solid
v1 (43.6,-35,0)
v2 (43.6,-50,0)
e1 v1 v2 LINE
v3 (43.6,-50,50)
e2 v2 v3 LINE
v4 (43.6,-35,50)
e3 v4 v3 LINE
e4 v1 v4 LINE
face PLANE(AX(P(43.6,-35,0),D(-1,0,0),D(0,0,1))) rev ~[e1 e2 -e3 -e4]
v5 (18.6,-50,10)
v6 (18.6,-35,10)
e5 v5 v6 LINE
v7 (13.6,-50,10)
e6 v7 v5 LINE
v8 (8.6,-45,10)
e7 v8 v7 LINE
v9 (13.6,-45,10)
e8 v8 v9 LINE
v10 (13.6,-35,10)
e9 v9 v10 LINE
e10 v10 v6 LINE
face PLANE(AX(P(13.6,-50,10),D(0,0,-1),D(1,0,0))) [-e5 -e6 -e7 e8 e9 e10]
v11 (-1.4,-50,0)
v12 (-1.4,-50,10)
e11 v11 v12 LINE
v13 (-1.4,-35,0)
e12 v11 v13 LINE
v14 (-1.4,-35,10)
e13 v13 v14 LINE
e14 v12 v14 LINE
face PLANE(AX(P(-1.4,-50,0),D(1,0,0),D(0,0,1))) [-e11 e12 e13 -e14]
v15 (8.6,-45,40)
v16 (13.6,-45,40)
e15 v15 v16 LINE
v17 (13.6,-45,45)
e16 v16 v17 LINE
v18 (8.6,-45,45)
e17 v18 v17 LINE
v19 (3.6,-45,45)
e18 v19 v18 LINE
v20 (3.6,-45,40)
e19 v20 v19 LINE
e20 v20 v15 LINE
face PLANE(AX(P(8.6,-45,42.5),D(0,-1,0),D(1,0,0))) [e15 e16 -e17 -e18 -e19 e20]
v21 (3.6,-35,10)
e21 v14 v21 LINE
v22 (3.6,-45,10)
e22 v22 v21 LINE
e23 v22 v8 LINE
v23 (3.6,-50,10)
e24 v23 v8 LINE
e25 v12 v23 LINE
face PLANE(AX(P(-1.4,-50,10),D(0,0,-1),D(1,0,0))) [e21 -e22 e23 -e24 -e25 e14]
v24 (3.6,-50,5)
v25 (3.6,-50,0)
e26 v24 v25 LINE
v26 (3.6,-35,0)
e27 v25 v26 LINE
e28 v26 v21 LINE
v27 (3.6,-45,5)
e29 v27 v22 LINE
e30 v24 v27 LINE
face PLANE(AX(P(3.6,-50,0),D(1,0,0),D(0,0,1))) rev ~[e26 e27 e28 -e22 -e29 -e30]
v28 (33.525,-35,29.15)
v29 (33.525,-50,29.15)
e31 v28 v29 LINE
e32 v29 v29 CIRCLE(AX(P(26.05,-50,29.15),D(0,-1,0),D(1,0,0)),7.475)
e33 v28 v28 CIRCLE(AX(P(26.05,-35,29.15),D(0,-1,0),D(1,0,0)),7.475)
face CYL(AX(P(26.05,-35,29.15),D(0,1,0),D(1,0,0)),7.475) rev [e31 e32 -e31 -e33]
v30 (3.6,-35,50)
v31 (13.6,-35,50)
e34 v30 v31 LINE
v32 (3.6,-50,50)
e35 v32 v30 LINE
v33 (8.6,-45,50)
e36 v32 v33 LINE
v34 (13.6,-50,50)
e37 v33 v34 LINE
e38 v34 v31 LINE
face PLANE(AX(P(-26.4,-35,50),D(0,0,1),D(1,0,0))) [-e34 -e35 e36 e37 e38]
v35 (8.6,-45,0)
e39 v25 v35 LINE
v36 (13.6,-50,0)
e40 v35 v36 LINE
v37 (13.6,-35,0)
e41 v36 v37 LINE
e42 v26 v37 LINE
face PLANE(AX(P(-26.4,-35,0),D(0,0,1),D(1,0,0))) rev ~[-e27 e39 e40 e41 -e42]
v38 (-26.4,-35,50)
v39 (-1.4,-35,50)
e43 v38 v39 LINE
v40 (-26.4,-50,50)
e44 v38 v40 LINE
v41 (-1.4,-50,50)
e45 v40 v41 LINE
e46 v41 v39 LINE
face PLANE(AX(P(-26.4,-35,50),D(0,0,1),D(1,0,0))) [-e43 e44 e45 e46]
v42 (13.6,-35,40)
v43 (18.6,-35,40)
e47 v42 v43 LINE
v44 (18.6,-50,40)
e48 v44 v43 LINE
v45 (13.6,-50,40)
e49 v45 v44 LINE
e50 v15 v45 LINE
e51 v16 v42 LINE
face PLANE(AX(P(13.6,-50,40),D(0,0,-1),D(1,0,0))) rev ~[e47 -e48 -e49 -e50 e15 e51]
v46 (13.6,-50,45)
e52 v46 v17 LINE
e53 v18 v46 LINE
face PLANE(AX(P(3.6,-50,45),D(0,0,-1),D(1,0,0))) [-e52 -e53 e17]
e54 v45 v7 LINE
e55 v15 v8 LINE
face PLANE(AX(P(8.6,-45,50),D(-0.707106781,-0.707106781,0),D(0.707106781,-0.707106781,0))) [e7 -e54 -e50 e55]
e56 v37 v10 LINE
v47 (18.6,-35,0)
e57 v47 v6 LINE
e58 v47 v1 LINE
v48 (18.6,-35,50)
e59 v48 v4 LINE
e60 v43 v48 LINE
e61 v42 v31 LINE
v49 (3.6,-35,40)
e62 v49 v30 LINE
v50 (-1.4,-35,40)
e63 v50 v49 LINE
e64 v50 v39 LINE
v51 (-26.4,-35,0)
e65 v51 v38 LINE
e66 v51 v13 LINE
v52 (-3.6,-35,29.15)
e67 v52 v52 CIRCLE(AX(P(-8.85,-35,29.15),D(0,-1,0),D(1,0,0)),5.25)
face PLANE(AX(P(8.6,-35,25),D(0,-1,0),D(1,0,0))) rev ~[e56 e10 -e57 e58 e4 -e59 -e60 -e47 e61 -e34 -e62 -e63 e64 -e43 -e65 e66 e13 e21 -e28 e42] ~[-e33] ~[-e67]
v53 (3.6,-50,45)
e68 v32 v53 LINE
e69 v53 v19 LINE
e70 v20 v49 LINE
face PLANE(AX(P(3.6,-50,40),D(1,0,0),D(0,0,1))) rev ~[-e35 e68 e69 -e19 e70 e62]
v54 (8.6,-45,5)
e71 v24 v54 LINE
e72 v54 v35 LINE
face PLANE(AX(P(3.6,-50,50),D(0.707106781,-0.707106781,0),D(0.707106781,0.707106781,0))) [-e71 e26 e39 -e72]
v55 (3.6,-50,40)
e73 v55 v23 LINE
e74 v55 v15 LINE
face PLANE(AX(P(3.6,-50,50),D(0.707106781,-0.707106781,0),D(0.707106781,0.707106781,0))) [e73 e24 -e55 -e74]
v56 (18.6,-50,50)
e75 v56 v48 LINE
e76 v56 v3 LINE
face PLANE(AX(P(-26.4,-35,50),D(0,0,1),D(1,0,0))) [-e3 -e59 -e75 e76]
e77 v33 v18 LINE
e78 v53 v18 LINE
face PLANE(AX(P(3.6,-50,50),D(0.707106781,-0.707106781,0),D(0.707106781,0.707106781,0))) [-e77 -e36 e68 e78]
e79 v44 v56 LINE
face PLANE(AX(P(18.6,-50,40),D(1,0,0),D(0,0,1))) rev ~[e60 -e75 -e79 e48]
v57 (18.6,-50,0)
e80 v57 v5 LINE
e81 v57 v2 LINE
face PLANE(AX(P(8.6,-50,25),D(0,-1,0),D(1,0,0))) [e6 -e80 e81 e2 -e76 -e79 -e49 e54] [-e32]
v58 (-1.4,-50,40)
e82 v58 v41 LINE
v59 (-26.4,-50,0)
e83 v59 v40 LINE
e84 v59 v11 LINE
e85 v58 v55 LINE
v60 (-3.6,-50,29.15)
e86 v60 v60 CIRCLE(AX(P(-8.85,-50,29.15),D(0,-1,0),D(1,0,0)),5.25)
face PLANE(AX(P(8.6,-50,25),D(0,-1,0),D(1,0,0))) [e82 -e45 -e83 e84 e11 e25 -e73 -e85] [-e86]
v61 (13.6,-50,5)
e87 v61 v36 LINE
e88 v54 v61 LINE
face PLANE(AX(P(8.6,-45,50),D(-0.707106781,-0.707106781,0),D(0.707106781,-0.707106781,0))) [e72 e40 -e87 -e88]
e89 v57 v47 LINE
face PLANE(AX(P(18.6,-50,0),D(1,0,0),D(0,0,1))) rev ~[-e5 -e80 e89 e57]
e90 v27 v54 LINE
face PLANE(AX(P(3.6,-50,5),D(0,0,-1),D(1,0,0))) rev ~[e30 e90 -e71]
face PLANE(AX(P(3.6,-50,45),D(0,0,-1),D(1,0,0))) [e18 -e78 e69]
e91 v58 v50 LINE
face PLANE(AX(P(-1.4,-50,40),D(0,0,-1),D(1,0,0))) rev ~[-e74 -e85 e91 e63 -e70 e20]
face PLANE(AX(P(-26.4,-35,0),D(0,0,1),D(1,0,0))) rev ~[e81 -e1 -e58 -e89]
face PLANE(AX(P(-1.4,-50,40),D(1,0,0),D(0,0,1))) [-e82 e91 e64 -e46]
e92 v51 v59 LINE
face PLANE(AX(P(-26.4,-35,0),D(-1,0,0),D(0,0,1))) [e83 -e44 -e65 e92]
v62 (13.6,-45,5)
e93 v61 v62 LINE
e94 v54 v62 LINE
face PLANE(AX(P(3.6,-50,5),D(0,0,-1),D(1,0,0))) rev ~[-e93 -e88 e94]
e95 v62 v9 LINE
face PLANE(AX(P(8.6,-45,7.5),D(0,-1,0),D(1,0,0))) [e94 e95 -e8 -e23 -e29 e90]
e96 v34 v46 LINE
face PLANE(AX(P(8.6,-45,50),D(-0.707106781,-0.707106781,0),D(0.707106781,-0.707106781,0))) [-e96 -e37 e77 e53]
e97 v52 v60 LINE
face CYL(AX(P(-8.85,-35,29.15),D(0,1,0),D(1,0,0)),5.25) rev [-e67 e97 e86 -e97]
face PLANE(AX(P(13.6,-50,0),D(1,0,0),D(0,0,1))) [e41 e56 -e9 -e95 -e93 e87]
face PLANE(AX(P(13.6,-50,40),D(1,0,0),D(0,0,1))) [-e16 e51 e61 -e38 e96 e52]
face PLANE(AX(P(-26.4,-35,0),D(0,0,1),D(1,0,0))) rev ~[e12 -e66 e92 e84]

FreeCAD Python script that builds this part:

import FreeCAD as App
import Part
import Sketcher
from FreeCAD import Vector
Q = App.Units.Quantity

doc = App.newDocument("Part")
body = doc.addObject("PartDesign::Body", "Body")

sketch1 = body.newObject("Sketcher::SketchObject", "Sketch")
sketch1.AttachmentSupport = (doc.getObject("XZ_Plane"), [""])
sketch1.MapMode = "FlatFace"
sketch1.addGeometry(Part.LineSegment(Vector(-26.4, 50, 0), Vector(-26.4, 0, 0)), False)
sketch1.addGeometry(Part.LineSegment(Vector(-26.4, 0, 0), Vector(43.6, 0, 0)), False)
sketch1.addGeometry(Part.LineSegment(Vector(43.6, 0, 0), Vector(43.6, 50, 0)), False)
sketch1.addGeometry(Part.LineSegment(Vector(43.6, 50, 0), Vector(-26.4, 50, 0)), False)
sketch1.addGeometry(Part.Circle(Vector(-8.85, 29.15, 0), Vector(0, 0, 1), 5.25), False)
sketch1.addGeometry(Part.Circle(Vector(26.05, 29.15, 0), Vector(0, 0, 1), 7.475), False)
sketch1.addConstraint(Sketcher.Constraint("Coincident", 0, 2, 1, 1))
sketch1.addConstraint(Sketcher.Constraint("Coincident", 1, 2, 2, 1))
sketch1.addConstraint(Sketcher.Constraint("Coincident", 2, 2, 3, 1))
sketch1.addConstraint(Sketcher.Constraint("Coincident", 3, 2, 0, 1))
sketch1.addConstraint(Sketcher.Constraint("Vertical", 0))
sketch1.addConstraint(Sketcher.Constraint("Horizontal", 1))
sketch1.addConstraint(Sketcher.Constraint("Vertical", 2))
sketch1.addConstraint(Sketcher.Constraint("Horizontal", 3))
sketch1.addConstraint(Sketcher.Constraint("PointOnObject", 0, 2, -1))
sketch1.addConstraint(Sketcher.Constraint("Horizontal", 4, 3, 5, 3))
sketch1.addConstraint(Sketcher.Constraint("Diameter", 4, Q("10.5 mm")))
sketch1.addConstraint(Sketcher.Constraint("Diameter", 5, Q("14.95 mm")))
sketch1.addConstraint(Sketcher.Constraint("DistanceX", 1, 1, 1, 2, Q("70 mm")))
sketch1.addConstraint(Sketcher.Constraint("DistanceY", 0, 2, 0, 1, Q("50 mm")))
sketch1.addConstraint(Sketcher.Constraint("DistanceX", 0, 2, -1, 1, Q("26.4 mm")))
sketch1.addConstraint(Sketcher.Constraint("DistanceX", 4, 3, 5, 3, Q("34.9 mm")))
sketch1.addConstraint(Sketcher.Constraint("DistanceX", 4, 3, -1, 1, Q("8.85 mm")))
sketch1.addConstraint(Sketcher.Constraint("DistanceY", -1, 1, 4, 3, Q("29.15 mm")))
pad1 = body.newObject("PartDesign::Pad", "Pad")
pad1.Profile = sketch1
pad1.Length = 15

sketch2 = body.newObject("Sketcher::SketchObject", "Sketch001")
sketch2.AttachmentSupport = (doc.getObject("XY_Plane"), [""])
sketch2.MapMode = "FlatFace"
sketch2.AttachmentOffset = App.Placement(Vector(0, 0, 50), App.Rotation())
sketch2.addGeometry(Part.LineSegment(Vector(8.6, -10, 0), Vector(3.6, -15, 0)), False)
sketch2.addGeometry(Part.LineSegment(Vector(3.6, -15, 0), Vector(13.6, -15, 0)), False)
sketch2.addGeometry(Part.LineSegment(Vector(13.6, -15, 0), Vector(8.6, -10, 0)), False)
sketch2.addConstraint(Sketcher.Constraint("Coincident", 0, 2, 1, 1))
sketch2.addConstraint(Sketcher.Constraint("Coincident", 1, 2, 2, 1))
sketch2.addConstraint(Sketcher.Constraint("Coincident", 2, 2, 0, 1))
sketch2.addConstraint(Sketcher.Constraint("Horizontal", 1))
sketch2.addConstraint(Sketcher.Constraint("Perpendicular", 0, 2))
sketch2.addConstraint(Sketcher.Constraint("Equal", 0, 2))
sketch2.addConstraint(Sketcher.Constraint("DistanceX", 1, 1, 1, 2, Q("10 mm")))
sketch2.addConstraint(Sketcher.Constraint("DistanceY", 0, 2, -1, 1, Q("15 mm")))
sketch2.addConstraint(Sketcher.Constraint("DistanceX", -1, 1, 0, 2, Q("3.6 mm")))
pocket1 = body.newObject("PartDesign::Pocket", "Pocket")
pocket1.Profile = sketch2
pocket1.Type = "ThroughAll"

sketch3 = body.newObject("Sketcher::SketchObject", "Sketch002")
sketch3.AttachmentSupport = (doc.getObject("XZ_Plane"), [""])
sketch3.MapMode = "FlatFace"
sketch3.AttachmentOffset = App.Placement(Vector(0, 0, 15), App.Rotation())
sketch3.addGeometry(Part.LineSegment(Vector(13.6, 10, 0), Vector(13.6, 0, 0)), False)
sketch3.addGeometry(Part.LineSegment(Vector(13.6, 0, 0), Vector(18.6, 0, 0)), False)
sketch3.addGeometry(Part.LineSegment(Vector(18.6, 0, 0), Vector(18.6, 10, 0)), False)
sketch3.addGeometry(Part.LineSegment(Vector(18.6, 10, 0), Vector(13.6, 10, 0)), False)
sketch3.addGeometry(Part.LineSegment(Vector(-1.4, 10, 0), Vector(-1.4, 0, 0)), False)
sketch3.addGeometry(Part.LineSegment(Vector(-1.4, 0, 0), Vector(3.6, 0, 0)), False)
sketch3.addGeometry(Part.LineSegment(Vector(3.6, 0, 0), Vector(3.6, 10, 0)), False)
sketch3.addGeometry(Part.LineSegment(Vector(3.6, 10, 0), Vector(-1.4, 10, 0)), False)
sketch3.addConstraint(Sketcher.Constraint("Coincident", 0, 2, 1, 1))
sketch3.addConstraint(Sketcher.Constraint("Coincident", 1, 2, 2, 1))
sketch3.addConstraint(Sketcher.Constraint("Coincident", 2, 2, 3, 1))
sketch3.addConstraint(Sketcher.Constraint("Coincident", 3, 2, 0, 1))
sketch3.addConstraint(Sketcher.Constraint("Coincident", 4, 2, 5, 1))
sketch3.addConstraint(Sketcher.Constraint("Coincident", 5, 2, 6, 1))
sketch3.addConstraint(Sketcher.Constraint("Coincident", 6, 2, 7, 1))
sketch3.addConstraint(Sketcher.Constraint("Coincident", 7, 2, 4, 1))
sketch3.addConstraint(Sketcher.Constraint("Vertical", 0))
sketch3.addConstraint(Sketcher.Constraint("Horizontal", 1))
sketch3.addConstraint(Sketcher.Constraint("Vertical", 2))
sketch3.addConstraint(Sketcher.Constraint("Horizontal", 3))
sketch3.addConstraint(Sketcher.Constraint("Vertical", 4))
sketch3.addConstraint(Sketcher.Constraint("Horizontal", 5))
sketch3.addConstraint(Sketcher.Constraint("Vertical", 6))
sketch3.addConstraint(Sketcher.Constraint("Horizontal", 7))
sketch3.addConstraint(Sketcher.Constraint("PointOnObject", 0, 2, -1))
sketch3.addConstraint(Sketcher.Constraint("PointOnObject", 4, 2, -1))
sketch3.addConstraint(Sketcher.Constraint("Horizontal", 3, 2, 6, 2))
sketch3.addConstraint(Sketcher.Constraint("Equal", 3, 5))
sketch3.addConstraint(Sketcher.Constraint("DistanceX", 1, 1, 1, 2, Q("5 mm")))
sketch3.addConstraint(Sketcher.Constraint("DistanceY", 0, 2, 0, 1, Q("10 mm")))
sketch3.addConstraint(Sketcher.Constraint("DistanceX", 4, 2, 0, 2, Q("15 mm")))
sketch3.addConstraint(Sketcher.Constraint("DistanceX", -1, 1, 0, 2, Q("13.6 mm")))
pocket2 = body.newObject("PartDesign::Pocket", "Pocket001")
pocket2.Profile = sketch3
pocket2.Type = "ThroughAll"
doc.recompute()

linearpattern = body.newObject("PartDesign::LinearPattern", "LinearPattern")
linearpattern.Originals = [pocket2]
linearpattern.Direction = (doc.getObject("Z_Axis"), [""])
linearpattern.Mode = "offset"
linearpattern.Offset = 40
linearpattern.Occurrences = 2
body.Tip = linearpattern

sketch4 = body.newObject("Sketcher::SketchObject", "Sketch003")
sketch4.AttachmentSupport = (doc.getObject("XZ_Plane"), [""])
sketch4.MapMode = "FlatFace"
sketch4.AttachmentOffset = App.Placement(Vector(0, 0, 15), App.Rotation())
sketch4.addGeometry(Part.LineSegment(Vector(3.6, 45, 0), Vector(3.6, 40, 0)), False)
sketch4.addGeometry(Part.LineSegment(Vector(3.6, 40, 0), Vector(13.6, 40, 0)), False)
sketch4.addGeometry(Part.LineSegment(Vector(13.6, 40, 0), Vector(13.6, 45, 0)), False)
sketch4.addGeometry(Part.LineSegment(Vector(13.6, 45, 0), Vector(3.6, 45, 0)), False)
sketch4.addConstraint(Sketcher.Constraint("Coincident", 0, 2, 1, 1))
sketch4.addConstraint(Sketcher.Constraint("Coincident", 1, 2, 2, 1))
sketch4.addConstraint(Sketcher.Constraint("Coincident", 2, 2, 3, 1))
sketch4.addConstraint(Sketcher.Constraint("Coincident", 3, 2, 0, 1))
sketch4.addConstraint(Sketcher.Constraint("Vertical", 0))
sketch4.addConstraint(Sketcher.Constraint("Horizontal", 1))
sketch4.addConstraint(Sketcher.Constraint("Vertical", 2))
sketch4.addConstraint(Sketcher.Constraint("Horizontal", 3))
sketch4.addConstraint(Sketcher.Constraint("DistanceX", 1, 1, 1, 2, Q("10 mm")))
sketch4.addConstraint(Sketcher.Constraint("DistanceY", 0, 2, 0, 1, Q("5 mm")))
sketch4.addConstraint(Sketcher.Constraint("DistanceY", -1, 1, 0, 2, Q("40 mm")))
sketch4.addConstraint(Sketcher.Constraint("DistanceX", -1, 1, 0, 2, Q("3.6 mm")))
pocket3 = body.newObject("PartDesign::Pocket", "Pocket002")
pocket3.Profile = sketch4
pocket3.Length = 5
doc.recompute()

linearpattern2 = body.newObject("PartDesign::LinearPattern", "LinearPattern001")
linearpattern2.Originals = [pocket3]
linearpattern2.Direction = (doc.getObject("Z_Axis"), [""])
linearpattern2.Mode = "offset"
linearpattern2.Offset = 35
linearpattern2.Occurrences = 2
linearpattern2.Reversed = True
body.Tip = linearpattern2
body2 = doc.addObject("PartDesign::Body", "Body001")
doc.recompute()

body.Placement = App.Placement(Vector(0, -35, 0), App.Rotation(Vector(0, 0, 1), 0))
boolean = body2.newObject("PartDesign::Boolean", "Boolean")
boolean.Type = "Fuse"
boolean.addObjects([body])

doc.recompute()
